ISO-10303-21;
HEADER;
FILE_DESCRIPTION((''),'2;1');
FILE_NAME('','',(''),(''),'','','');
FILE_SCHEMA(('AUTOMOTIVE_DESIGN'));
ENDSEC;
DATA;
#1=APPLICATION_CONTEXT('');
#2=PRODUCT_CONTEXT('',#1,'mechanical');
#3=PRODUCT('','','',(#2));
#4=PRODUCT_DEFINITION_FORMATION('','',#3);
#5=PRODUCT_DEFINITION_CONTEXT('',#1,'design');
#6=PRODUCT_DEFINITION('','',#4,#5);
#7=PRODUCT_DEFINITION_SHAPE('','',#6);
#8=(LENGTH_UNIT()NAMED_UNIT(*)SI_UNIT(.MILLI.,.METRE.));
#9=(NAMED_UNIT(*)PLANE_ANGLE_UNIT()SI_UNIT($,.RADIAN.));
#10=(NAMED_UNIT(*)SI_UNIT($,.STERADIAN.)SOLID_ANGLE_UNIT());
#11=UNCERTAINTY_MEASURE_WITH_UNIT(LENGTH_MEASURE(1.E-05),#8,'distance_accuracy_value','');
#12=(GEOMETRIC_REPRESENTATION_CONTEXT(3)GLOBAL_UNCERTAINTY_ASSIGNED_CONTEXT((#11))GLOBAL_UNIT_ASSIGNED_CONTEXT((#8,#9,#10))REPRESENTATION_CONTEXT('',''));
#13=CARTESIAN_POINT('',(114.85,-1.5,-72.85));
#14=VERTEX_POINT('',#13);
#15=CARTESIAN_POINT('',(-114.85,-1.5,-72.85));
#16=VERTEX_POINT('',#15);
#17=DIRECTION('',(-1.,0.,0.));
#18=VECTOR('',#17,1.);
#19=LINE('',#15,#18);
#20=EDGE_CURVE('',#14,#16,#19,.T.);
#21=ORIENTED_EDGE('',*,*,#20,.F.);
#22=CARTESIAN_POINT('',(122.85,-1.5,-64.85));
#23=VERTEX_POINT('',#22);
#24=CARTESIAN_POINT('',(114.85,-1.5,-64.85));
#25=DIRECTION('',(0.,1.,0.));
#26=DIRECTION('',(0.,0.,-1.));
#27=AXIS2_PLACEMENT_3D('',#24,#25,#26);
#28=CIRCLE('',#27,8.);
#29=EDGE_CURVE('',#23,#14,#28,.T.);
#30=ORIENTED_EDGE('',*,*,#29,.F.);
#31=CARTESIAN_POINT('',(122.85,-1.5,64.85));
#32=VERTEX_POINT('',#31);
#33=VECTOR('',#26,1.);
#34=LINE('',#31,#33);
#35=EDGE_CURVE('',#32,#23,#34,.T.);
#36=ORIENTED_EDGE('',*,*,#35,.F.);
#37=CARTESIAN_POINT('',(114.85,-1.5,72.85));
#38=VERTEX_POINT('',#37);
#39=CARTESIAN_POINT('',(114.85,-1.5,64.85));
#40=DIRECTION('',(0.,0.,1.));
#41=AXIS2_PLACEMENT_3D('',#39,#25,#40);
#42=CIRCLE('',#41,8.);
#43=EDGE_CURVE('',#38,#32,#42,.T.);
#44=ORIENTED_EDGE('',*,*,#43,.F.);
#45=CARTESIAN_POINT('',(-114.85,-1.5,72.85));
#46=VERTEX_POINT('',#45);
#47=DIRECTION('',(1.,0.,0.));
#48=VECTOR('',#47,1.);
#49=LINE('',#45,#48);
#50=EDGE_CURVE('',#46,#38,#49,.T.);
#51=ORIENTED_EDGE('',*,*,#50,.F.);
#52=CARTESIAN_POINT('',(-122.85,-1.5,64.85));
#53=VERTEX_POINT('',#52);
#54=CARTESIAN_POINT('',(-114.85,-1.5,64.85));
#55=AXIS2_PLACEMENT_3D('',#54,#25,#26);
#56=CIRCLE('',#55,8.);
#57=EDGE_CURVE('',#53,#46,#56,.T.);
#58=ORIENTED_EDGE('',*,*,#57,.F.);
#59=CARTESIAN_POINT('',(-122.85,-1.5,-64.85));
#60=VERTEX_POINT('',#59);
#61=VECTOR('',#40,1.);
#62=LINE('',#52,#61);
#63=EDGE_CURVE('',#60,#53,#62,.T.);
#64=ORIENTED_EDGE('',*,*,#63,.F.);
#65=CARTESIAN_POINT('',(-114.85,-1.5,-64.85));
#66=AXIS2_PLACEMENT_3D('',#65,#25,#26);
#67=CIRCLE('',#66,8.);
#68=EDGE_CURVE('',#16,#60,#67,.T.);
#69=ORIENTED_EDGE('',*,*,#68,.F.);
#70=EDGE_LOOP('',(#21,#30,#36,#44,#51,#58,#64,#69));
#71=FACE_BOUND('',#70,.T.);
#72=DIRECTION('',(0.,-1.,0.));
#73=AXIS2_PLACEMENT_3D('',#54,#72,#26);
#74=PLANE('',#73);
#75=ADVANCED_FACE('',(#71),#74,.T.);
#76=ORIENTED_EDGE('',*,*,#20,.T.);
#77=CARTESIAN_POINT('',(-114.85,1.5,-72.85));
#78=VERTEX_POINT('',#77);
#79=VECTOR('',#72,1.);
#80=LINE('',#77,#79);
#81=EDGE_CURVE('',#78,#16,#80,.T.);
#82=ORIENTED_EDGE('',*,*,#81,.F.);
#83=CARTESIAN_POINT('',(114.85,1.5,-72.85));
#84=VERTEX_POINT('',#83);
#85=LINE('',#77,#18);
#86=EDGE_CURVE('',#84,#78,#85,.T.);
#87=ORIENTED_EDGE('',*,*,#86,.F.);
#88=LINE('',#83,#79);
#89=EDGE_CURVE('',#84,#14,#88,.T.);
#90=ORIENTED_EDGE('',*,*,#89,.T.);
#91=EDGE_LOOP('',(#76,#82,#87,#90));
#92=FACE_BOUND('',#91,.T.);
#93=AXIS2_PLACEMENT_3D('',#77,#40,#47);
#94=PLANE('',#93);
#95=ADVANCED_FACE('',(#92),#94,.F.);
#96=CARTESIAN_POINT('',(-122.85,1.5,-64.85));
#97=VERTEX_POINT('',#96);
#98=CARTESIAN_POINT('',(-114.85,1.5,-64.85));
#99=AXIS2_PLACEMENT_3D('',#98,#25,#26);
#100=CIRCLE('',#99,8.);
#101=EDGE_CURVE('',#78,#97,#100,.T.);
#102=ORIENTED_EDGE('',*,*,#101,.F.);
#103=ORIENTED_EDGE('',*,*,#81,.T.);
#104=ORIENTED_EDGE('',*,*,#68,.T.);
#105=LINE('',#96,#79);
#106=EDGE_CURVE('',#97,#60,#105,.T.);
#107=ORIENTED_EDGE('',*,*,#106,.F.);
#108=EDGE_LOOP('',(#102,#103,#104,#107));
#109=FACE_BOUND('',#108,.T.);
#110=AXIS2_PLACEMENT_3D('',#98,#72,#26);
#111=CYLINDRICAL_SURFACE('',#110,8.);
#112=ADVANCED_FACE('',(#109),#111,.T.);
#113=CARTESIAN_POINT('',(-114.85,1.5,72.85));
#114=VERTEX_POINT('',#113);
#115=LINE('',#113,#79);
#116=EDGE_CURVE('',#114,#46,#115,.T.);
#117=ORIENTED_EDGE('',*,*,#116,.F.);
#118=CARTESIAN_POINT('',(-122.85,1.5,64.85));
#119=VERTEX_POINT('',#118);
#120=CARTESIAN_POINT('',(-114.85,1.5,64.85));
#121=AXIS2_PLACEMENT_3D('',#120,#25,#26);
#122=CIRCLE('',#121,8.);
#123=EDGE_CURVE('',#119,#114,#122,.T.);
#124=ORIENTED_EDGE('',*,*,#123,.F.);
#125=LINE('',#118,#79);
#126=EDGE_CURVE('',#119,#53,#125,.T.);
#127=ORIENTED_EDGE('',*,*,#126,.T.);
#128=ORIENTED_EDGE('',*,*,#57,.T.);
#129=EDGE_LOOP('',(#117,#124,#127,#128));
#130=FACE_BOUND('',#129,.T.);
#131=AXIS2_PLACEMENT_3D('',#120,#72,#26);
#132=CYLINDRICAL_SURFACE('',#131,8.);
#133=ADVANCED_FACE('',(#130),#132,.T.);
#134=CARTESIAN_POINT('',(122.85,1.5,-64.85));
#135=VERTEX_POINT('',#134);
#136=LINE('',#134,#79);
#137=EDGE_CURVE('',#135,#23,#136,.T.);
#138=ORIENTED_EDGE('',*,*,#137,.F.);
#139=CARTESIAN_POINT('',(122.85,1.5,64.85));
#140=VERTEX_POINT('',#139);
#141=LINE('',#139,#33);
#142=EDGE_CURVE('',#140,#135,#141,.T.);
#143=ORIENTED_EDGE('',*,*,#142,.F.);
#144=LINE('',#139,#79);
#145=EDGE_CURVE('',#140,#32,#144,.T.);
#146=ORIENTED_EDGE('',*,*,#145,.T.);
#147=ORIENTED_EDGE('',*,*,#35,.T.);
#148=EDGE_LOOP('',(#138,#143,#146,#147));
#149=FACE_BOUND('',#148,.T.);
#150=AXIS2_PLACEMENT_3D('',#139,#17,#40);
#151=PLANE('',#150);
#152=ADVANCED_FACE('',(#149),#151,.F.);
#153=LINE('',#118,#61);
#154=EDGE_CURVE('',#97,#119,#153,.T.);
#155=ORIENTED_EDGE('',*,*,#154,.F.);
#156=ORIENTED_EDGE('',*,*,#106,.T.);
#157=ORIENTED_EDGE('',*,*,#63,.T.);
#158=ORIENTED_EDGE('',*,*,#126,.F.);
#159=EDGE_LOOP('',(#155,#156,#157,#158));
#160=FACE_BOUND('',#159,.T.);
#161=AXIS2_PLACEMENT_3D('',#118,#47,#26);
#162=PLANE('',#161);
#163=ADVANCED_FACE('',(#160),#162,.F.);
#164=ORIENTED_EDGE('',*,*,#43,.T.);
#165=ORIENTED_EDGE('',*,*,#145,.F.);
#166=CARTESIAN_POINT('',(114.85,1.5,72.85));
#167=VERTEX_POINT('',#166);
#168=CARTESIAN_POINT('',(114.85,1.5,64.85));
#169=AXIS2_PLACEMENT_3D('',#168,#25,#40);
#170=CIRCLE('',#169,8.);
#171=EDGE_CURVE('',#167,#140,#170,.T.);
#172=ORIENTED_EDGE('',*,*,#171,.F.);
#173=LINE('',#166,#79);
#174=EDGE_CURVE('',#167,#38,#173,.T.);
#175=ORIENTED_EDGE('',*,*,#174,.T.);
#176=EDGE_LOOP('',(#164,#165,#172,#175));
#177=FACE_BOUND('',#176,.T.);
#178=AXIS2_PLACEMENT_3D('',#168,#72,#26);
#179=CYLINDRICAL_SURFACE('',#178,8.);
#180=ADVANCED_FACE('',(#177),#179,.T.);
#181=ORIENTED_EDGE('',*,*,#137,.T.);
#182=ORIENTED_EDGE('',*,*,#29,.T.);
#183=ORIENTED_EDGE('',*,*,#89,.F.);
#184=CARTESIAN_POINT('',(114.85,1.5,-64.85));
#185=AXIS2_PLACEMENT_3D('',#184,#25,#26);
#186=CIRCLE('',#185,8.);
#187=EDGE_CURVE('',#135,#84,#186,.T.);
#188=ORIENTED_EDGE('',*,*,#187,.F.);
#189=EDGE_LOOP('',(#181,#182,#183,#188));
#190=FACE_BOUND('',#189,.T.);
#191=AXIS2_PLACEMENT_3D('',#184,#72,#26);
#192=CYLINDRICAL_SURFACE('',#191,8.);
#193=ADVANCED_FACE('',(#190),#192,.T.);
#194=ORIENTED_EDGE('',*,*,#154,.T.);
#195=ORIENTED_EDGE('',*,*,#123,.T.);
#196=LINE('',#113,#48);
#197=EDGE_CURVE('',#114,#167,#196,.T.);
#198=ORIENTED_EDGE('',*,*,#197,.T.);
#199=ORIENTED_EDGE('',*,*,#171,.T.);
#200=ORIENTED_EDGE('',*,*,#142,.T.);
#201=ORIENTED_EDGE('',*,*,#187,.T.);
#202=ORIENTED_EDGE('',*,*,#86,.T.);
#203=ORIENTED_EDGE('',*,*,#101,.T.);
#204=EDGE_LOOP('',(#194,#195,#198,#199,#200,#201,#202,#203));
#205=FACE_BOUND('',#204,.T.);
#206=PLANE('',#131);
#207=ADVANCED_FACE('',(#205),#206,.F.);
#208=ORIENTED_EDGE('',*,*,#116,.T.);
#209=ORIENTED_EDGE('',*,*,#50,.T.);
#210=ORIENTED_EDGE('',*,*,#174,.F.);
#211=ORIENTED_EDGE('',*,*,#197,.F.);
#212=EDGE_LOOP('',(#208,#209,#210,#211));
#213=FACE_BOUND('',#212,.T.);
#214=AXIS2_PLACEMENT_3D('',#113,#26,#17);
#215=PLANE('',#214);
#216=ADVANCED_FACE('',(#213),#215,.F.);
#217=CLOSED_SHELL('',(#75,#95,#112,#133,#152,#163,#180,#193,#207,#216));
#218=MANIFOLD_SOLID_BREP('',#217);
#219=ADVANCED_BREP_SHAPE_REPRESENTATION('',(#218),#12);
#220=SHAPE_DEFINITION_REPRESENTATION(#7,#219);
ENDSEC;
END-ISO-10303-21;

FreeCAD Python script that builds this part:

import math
import FreeCAD as App
import Part
import Sketcher

V = App.Vector

doc = App.newDocument("Part")
params = doc.addObject("Spreadsheet::Sheet", "Params")
for row, (alias, value) in enumerate([
    ("sketch1_radius", "8 mm"),
    ("sketch1_width", "229.7 mm"),
    ("sketch1_height", "129.7 mm"),
    ("pad1_length", "3 mm"),
], start=1):
    params.set(f"A{row}", alias)
    params.set(f"B{row}", "=" + value)
    params.setAlias(f"B{row}", alias)

body = doc.addObject("PartDesign::Body", "Body")

# Sketch on XZ plane
sketch1 = doc.addObject("Sketcher::SketchObject", "Sketch")
body.addObject(sketch1)
sketch1.AttachmentSupport = (doc.XZ_Plane, [""])
sketch1.MapMode = "FlatFace"
sketch1.addGeometry(Part.LineSegment(V(-115, 73, 0), V(115, 73, 0)), False)
sketch1.addGeometry(Part.ArcOfCircle(Part.Circle(V(115, 65, 0), V(0, 0, 1), 8), math.radians(0), math.radians(90)), False)
sketch1.addGeometry(Part.LineSegment(V(123, 65, 0), V(123, -65, 0)), False)
sketch1.addGeometry(Part.ArcOfCircle(Part.Circle(V(115, -65, 0), V(0, 0, 1), 8), math.radians(-90), math.radians(0)), False)
sketch1.addGeometry(Part.LineSegment(V(115, -73, 0), V(-115, -73, 0)), False)
sketch1.addGeometry(Part.ArcOfCircle(Part.Circle(V(-115, -65, 0), V(0, 0, 1), 8), math.radians(-180), math.radians(-90)), False)
sketch1.addGeometry(Part.LineSegment(V(-123, -65, 0), V(-123, 65, 0)), False)
sketch1.addGeometry(Part.ArcOfCircle(Part.Circle(V(-115, 65, 0), V(0, 0, 1), 8), math.radians(90), math.radians(180)), False)
sketch1.addConstraint(Sketcher.Constraint("Tangent", 0, 2, 1, 2))
sketch1.addConstraint(Sketcher.Constraint("Tangent", 1, 1, 2, 1))
sketch1.addConstraint(Sketcher.Constraint("Tangent", 2, 2, 3, 2))
sketch1.addConstraint(Sketcher.Constraint("Tangent", 3, 1, 4, 1))
sketch1.addConstraint(Sketcher.Constraint("Tangent", 4, 2, 5, 2))
sketch1.addConstraint(Sketcher.Constraint("Tangent", 5, 1, 6, 1))
sketch1.addConstraint(Sketcher.Constraint("Tangent", 6, 2, 7, 2))
sketch1.addConstraint(Sketcher.Constraint("Tangent", 7, 1, 0, 1))
sketch1.addConstraint(Sketcher.Constraint("Horizontal", 0))
sketch1.addConstraint(Sketcher.Constraint("Vertical", 2))
sketch1.addConstraint(Sketcher.Constraint("Horizontal", 4))
sketch1.addConstraint(Sketcher.Constraint("Vertical", 6))
sketch1.addConstraint(Sketcher.Constraint("Equal", 1, 3))
sketch1.addConstraint(Sketcher.Constraint("Equal", 3, 5))
sketch1.addConstraint(Sketcher.Constraint("Equal", 5, 7))
sketch1.addConstraint(Sketcher.Constraint("Symmetric", 1, 3, 5, 3, -1, 1))
sketch1.addConstraint(Sketcher.Constraint("Radius", 1, 8.0))
sketch1.addConstraint(Sketcher.Constraint("DistanceX", 0, 1, 0, 2, 229.7))
sketch1.addConstraint(Sketcher.Constraint("DistanceY", 2, 2, 2, 1, 129.7))
sketch1.setExpression("Constraints[16]", "Params.sketch1_radius")
sketch1.setExpression("Constraints[17]", "Params.sketch1_width")
sketch1.setExpression("Constraints[18]", "Params.sketch1_height")
pad1 = doc.addObject("PartDesign::Pad", "Pad")
body.addObject(pad1)
pad1.Profile = sketch1
pad1.setExpression("Length", "Params.pad1_length")
pad1.Midplane = True

doc.recompute()
